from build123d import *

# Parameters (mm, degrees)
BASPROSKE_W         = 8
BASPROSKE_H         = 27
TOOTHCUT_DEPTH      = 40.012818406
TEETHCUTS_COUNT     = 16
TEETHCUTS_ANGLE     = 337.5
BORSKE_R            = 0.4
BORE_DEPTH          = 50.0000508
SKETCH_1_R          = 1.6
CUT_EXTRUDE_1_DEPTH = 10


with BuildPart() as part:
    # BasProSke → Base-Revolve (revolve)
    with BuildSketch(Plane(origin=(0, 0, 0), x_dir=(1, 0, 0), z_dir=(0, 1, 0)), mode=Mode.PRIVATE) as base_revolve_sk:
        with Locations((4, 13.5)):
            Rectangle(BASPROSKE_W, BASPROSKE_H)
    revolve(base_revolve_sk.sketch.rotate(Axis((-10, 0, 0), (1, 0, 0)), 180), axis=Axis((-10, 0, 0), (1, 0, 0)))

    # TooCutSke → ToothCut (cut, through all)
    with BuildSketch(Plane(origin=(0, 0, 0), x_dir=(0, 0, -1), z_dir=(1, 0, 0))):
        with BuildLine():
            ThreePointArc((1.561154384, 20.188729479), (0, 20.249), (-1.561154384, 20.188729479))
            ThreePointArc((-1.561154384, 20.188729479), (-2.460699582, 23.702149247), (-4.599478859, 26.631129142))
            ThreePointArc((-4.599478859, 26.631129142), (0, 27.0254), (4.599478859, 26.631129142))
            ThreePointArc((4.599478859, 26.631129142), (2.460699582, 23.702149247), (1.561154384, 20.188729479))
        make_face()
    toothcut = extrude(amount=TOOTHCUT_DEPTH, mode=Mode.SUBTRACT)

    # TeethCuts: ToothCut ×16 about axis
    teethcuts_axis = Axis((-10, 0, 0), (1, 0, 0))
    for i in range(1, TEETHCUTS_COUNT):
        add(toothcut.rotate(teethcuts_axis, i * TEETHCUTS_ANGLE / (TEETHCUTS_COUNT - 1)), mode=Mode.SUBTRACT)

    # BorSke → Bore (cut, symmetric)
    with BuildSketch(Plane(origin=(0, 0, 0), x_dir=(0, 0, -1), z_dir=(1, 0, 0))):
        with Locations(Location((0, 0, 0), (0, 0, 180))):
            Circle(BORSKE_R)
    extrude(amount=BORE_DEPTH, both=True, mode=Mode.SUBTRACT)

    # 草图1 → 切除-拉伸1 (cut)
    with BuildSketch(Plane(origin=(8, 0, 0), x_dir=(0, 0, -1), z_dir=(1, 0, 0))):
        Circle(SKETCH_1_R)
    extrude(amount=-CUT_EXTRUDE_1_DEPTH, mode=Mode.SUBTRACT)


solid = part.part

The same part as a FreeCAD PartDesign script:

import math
import FreeCAD as App
import Part
import Sketcher

V = App.Vector


def add_polygon(sketch, points):
    """Adds a closed chain of lines whose ends are joined by coincident constraints."""
    first, n = sketch.GeometryCount, len(points)
    for a, b in zip(points, points[1:] + points[:1]):
        sketch.addGeometry(Part.LineSegment(App.Vector(*a, 0), App.Vector(*b, 0)), False)
    for i in range(n):
        sketch.addConstraint(Sketcher.Constraint("Coincident", first + i, 2, first + (i + 1) % n, 1))

doc = App.newDocument("Part")
params = doc.addObject("Spreadsheet::Sheet", "Params")
for row, (alias, value) in enumerate([
    ("sketch1_width", "8 mm"),
    ("sketch1_height", "27 mm"),
    ("revolution_angle", "360 deg"),
    ("sketch2_radius", "9.6 mm"),
    ("sketch3_diameter", "0.8 mm"),
    ("pocket2_length", "100.000102 mm"),
    ("sketch4_diameter", "3.2 mm"),
    ("pocket3_length", "10 mm"),
], start=1):
    params.set(f"A{row}", alias)
    params.set(f"B{row}", "=" + value)
    params.setAlias(f"B{row}", alias)

body = doc.addObject("PartDesign::Body", "Body")

# Sketch on XZ plane
sketch1 = doc.addObject("Sketcher::SketchObject", "Sketch")
body.addObject(sketch1)
sketch1.AttachmentSupport = (doc.XZ_Plane, [""])
sketch1.MapMode = "FlatFace"
add_polygon(sketch1, [(0, -27), (0, 0), (8, 0), (8, -27)])  # lines 0-3
sketch1.addConstraint([
    Sketcher.Constraint("Vertical", 0),
    Sketcher.Constraint("Horizontal", 1),
    Sketcher.Constraint("Vertical", 2),
    Sketcher.Constraint("Horizontal", 3),
    Sketcher.Constraint("Coincident", 0, 2, -1, 1),
    Sketcher.Constraint("DistanceX", 1, 1, 1, 2, 8.0),
    Sketcher.Constraint("DistanceY", 0, 1, 0, 2, 27.0),
])
sketch1.setExpression("Constraints[9]", "Params.sketch1_width")
sketch1.setExpression("Constraints[10]", "Params.sketch1_height")
revolution = doc.addObject("PartDesign::Revolution", "Revolution")
body.addObject(revolution)
revolution.Profile = sketch1
revolution.ReferenceAxis = (sketch1, ["H_Axis"])
revolution.setExpression("Angle", "Params.revolution_angle")

# Sketch on YZ plane
sketch2 = doc.addObject("Sketcher::SketchObject", "Sketch001")
body.addObject(sketch2)
sketch2.AttachmentSupport = (doc.YZ_Plane, [""])
sketch2.MapMode = "FlatFace"
sketch2.addGeometry([
    Part.ArcOfCircle(Part.Circle(V(0, 0, 0), V(0, 0, 1), 20.2), math.radians(-4.42), math.radians(4.42)),
    Part.ArcOfCircle(Part.Circle(V(19.6, -11.1, 0), V(0, 0, 1), 9.6), math.radians(43), math.radians(87)),
    Part.ArcOfCircle(Part.Circle(V(0, 0, 0), V(0, 0, 1), 27), math.radians(-9.8), math.radians(9.8)),
    Part.ArcOfCircle(Part.Circle(V(19.6, 11.1, 0), V(0, 0, 1), 9.6), math.radians(-87), math.radians(-43)),
], False)
sketch2.addConstraint([
    Sketcher.Constraint("Coincident", 0, 1, 1, 2),
    Sketcher.Constraint("Coincident", 1, 1, 2, 1),
    Sketcher.Constraint("Coincident", 2, 2, 3, 2),
    Sketcher.Constraint("Coincident", 3, 1, 0, 2),
    Sketcher.Constraint("Coincident", 0, 3, -1, 1),
    Sketcher.Constraint("Coincident", 2, 3, -1, 1),
    Sketcher.Constraint("Equal", 1, 3),
    Sketcher.Constraint("Symmetric", 1, 3, 3, 3, -1),
    Sketcher.Constraint("Radius", 1, 9.6),
    Sketcher.Constraint("Radius", 0, 20.249),
    Sketcher.Constraint("Radius", 2, 27.0254),
    Sketcher.Constraint("DistanceX", 0, 1, 1, 1, 6.4424),
    Sketcher.Constraint("DistanceX", -1, 1, 1, 3, 19.607209),
])
sketch2.setExpression("Constraints[8]", "Params.sketch2_radius")
pocket1 = doc.addObject("PartDesign::Pocket", "Pocket")
body.addObject(pocket1)
pocket1.Profile = sketch2
pocket1.Type = "ThroughAll"
pocket1.Reversed = True
doc.recompute()

polarpattern = doc.addObject("PartDesign::PolarPattern", "PolarPattern")
body.addObject(polarpattern)
polarpattern.Originals = [pocket1]
polarpattern.Axis = (doc.X_Axis, [""])
polarpattern.Angle = 360
polarpattern.Occurrences = 16
body.Tip = polarpattern

# Sketch on YZ plane
sketch3 = doc.addObject("Sketcher::SketchObject", "Sketch002")
body.addObject(sketch3)
sketch3.AttachmentSupport = (doc.YZ_Plane, [""])
sketch3.MapMode = "FlatFace"
sketch3.addGeometry(Part.Circle(V(0, 0, 0), V(0, 0, 1), 0.4), False)
sketch3.addConstraint([
    Sketcher.Constraint("Coincident", 0, 3, -1, 1),
    Sketcher.Constraint("Diameter", 0, 0.8),
])
sketch3.setExpression("Constraints[1]", "Params.sketch3_diameter")
pocket2 = doc.addObject("PartDesign::Pocket", "Pocket001")
body.addObject(pocket2)
pocket2.Profile = sketch3
pocket2.setExpression("Length", "Params.pocket2_length")
pocket2.Midplane = True

# Sketch on YZ plane
sketch4 = doc.addObject("Sketcher::SketchObject", "Sketch003")
body.addObject(sketch4)
sketch4.AttachmentSupport = (doc.YZ_Plane, [""])
sketch4.MapMode = "FlatFace"
sketch4.AttachmentOffset = App.Placement(V(0, 0, 8), App.Rotation())
sketch4.addGeometry(Part.Circle(V(0, 0, 0), V(0, 0, 1), 1.6), False)
sketch4.addConstraint([
    Sketcher.Constraint("Coincident", 0, 3, -1, 1),
    Sketcher.Constraint("Diameter", 0, 3.2),
])
sketch4.setExpression("Constraints[1]", "Params.sketch4_diameter")
pocket3 = doc.addObject("PartDesign::Pocket", "Pocket002")
body.addObject(pocket3)
pocket3.Profile = sketch4
pocket3.setExpression("Length", "Params.pocket3_length")

doc.recompute()
